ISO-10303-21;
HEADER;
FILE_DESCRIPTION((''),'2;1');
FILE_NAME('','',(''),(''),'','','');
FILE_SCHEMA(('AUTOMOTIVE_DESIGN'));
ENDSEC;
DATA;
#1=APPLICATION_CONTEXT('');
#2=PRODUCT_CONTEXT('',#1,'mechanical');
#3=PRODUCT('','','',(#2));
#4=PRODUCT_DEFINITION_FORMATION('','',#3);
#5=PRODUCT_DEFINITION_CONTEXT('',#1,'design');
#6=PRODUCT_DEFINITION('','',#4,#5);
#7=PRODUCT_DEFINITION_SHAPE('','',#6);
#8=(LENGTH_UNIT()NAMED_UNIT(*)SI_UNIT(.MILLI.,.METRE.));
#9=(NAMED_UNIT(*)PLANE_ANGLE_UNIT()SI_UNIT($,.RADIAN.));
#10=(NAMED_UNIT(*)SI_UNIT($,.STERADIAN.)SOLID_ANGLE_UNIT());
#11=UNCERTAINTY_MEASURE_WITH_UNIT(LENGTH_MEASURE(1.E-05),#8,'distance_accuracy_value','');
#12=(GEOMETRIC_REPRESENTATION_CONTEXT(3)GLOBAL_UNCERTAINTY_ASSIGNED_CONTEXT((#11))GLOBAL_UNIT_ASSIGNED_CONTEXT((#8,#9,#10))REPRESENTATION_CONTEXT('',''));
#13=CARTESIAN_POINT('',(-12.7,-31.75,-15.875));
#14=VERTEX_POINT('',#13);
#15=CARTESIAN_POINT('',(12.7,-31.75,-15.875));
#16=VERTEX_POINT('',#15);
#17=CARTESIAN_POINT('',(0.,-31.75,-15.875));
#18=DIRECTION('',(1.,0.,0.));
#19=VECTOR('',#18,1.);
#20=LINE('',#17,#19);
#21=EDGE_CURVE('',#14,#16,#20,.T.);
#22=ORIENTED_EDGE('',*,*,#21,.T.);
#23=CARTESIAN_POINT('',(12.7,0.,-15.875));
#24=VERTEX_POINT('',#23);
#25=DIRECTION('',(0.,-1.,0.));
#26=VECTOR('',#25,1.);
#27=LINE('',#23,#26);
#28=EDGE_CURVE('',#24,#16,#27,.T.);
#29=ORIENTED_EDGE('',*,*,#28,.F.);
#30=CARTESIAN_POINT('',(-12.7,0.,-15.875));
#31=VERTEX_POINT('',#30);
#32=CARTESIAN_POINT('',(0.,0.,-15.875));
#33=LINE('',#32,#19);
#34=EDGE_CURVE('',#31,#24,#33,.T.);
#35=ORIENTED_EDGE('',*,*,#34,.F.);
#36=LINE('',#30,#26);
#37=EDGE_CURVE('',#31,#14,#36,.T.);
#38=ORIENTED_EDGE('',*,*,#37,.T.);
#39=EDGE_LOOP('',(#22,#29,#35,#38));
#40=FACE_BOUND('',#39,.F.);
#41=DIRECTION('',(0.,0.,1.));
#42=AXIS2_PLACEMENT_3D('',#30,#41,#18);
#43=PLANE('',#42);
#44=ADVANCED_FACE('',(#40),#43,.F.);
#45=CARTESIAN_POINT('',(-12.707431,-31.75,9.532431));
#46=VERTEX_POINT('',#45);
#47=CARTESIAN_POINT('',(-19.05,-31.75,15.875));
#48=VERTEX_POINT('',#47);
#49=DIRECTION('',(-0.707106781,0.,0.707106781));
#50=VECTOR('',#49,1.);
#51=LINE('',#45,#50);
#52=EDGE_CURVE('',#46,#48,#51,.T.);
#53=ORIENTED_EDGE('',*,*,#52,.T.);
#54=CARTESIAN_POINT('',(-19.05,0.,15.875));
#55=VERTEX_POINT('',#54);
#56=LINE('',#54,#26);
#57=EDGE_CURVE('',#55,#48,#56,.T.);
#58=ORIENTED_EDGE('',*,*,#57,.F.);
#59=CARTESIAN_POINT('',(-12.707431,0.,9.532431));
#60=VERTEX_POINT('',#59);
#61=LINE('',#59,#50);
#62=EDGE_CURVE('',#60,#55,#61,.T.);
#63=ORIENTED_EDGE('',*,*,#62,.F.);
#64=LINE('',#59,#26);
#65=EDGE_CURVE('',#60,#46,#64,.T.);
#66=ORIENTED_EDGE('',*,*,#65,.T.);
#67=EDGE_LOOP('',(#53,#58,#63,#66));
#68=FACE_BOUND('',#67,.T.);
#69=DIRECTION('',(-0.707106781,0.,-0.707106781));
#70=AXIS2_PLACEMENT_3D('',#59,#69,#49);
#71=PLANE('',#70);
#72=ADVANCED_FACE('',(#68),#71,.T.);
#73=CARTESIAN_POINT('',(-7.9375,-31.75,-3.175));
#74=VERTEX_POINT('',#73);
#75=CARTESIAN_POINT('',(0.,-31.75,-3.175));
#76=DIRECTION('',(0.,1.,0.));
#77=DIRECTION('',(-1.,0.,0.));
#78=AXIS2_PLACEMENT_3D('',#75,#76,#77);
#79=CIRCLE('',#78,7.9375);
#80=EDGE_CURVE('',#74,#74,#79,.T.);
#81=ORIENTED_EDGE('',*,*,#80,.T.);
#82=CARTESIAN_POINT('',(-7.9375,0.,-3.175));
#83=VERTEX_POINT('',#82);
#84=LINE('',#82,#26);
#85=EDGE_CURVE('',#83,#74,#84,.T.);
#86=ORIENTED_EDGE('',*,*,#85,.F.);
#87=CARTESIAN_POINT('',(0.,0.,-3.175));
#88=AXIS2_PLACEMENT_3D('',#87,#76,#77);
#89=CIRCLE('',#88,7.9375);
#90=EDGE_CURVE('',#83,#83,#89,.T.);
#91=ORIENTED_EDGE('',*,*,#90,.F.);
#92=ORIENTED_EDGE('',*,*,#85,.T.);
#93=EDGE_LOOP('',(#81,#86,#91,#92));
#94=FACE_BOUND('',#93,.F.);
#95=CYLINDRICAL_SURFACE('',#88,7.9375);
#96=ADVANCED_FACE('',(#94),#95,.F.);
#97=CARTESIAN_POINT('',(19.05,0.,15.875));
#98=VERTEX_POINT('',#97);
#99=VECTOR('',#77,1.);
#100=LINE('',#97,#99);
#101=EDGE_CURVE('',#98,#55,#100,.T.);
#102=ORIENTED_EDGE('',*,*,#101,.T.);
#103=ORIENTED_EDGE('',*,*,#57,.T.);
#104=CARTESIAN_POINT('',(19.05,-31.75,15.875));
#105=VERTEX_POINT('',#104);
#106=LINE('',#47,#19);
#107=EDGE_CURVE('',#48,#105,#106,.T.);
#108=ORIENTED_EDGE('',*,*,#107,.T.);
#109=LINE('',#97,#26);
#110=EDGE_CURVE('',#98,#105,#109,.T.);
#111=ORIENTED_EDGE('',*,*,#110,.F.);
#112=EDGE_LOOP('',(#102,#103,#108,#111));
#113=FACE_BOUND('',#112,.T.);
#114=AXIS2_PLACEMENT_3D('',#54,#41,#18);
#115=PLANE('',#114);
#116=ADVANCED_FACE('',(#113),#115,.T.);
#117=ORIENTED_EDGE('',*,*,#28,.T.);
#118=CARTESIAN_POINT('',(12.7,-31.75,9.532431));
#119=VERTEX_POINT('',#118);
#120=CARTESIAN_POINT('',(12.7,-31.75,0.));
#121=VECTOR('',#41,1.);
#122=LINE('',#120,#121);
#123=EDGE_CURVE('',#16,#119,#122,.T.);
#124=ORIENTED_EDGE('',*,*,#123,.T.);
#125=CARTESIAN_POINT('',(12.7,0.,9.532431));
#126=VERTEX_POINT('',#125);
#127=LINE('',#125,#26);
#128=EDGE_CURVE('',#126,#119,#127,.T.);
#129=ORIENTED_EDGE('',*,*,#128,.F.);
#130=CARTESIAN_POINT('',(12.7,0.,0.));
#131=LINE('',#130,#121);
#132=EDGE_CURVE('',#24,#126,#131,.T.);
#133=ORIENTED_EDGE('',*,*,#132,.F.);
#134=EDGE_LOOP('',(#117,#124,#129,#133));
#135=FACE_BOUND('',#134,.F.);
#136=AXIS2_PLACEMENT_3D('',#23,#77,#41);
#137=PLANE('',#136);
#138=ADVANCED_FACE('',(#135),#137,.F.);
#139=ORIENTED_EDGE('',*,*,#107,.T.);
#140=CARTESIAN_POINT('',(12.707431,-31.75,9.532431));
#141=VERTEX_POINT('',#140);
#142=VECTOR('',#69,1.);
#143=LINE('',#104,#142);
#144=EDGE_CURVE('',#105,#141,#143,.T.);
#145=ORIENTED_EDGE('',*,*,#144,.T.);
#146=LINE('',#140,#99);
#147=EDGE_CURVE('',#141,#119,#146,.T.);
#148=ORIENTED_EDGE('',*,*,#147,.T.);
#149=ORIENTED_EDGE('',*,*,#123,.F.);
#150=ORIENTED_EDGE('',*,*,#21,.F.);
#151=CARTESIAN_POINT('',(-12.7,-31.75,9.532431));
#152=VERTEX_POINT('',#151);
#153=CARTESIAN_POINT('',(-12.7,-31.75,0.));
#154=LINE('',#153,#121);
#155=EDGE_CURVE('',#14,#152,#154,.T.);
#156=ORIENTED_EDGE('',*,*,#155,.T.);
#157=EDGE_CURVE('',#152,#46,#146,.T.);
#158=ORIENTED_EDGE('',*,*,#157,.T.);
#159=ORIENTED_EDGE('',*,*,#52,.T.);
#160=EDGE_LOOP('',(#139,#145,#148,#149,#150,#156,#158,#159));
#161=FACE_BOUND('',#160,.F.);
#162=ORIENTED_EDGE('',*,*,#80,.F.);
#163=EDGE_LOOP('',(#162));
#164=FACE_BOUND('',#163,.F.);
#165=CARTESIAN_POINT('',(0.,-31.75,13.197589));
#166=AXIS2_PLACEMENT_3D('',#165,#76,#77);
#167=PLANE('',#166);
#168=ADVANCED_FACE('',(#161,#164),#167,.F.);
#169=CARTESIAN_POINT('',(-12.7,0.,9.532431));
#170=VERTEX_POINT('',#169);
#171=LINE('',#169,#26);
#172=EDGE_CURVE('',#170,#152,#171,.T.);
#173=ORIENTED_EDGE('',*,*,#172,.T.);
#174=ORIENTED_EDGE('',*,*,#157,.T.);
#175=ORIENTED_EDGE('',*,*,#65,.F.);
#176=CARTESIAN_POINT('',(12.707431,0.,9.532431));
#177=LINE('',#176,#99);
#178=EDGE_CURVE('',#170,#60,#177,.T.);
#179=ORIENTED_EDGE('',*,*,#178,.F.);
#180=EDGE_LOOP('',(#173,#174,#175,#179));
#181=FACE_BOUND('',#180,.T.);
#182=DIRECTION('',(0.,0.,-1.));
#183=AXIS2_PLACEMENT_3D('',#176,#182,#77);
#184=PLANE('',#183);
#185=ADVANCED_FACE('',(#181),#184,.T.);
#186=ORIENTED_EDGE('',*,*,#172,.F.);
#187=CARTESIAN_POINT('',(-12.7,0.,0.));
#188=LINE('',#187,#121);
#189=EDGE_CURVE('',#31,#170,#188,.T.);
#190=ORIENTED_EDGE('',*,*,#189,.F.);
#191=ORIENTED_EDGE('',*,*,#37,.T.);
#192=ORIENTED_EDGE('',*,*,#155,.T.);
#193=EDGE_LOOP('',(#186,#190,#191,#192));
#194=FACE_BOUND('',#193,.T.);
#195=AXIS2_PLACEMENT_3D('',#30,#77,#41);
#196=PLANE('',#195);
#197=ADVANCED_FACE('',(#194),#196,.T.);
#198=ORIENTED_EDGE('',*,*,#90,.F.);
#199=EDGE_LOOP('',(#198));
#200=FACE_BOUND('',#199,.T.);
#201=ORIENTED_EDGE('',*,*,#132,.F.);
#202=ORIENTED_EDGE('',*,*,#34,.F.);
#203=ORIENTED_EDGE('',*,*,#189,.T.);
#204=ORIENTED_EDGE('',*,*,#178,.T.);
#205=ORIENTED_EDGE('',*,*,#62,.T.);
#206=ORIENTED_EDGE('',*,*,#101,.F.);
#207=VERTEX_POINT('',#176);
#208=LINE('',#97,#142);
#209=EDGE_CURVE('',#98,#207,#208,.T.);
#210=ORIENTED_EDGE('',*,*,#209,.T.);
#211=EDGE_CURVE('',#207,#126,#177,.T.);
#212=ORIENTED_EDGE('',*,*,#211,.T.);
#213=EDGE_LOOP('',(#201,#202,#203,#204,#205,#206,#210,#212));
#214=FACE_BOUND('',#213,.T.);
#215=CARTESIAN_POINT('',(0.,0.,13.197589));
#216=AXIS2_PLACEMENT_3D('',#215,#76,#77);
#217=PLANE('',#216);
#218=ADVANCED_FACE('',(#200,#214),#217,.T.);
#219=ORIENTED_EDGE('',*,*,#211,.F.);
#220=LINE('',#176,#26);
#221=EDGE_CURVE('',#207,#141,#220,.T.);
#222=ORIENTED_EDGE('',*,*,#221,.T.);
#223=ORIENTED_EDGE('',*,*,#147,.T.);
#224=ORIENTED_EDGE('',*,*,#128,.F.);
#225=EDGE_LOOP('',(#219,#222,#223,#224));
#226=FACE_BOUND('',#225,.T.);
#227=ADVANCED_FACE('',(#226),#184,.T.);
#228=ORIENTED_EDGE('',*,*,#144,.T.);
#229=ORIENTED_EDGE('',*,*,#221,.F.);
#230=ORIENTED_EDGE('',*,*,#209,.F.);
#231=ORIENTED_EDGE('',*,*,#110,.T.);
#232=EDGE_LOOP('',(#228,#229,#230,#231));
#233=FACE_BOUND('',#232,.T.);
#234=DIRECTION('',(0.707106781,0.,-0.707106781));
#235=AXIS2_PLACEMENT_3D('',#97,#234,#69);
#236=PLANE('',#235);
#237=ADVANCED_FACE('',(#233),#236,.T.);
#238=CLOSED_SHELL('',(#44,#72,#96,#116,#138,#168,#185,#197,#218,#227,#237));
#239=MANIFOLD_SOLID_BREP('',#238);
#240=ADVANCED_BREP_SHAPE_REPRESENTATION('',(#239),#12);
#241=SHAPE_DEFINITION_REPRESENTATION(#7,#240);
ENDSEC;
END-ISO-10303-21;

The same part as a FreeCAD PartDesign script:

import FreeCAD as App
import Part
import Sketcher
Q = App.Units.Quantity

doc = App.newDocument("Part")
params = doc.addObject("Spreadsheet::Sheet", "Params")
for row, (alias, value) in enumerate([
    ("sketch1_width", "1 in"),
    ("sketch1_height", "1.25 in"),
    ("pad1_length", "1.25 in"),
    ("sketch2_diameter", "0.625 in"),
    ("sketch3_width", "1.5 in"),
], start=1):
    params.set(f"A{row}", alias)
    params.set(f"B{row}", "=" + value)
    params.setAlias(f"B{row}", alias)

body = doc.addObject("PartDesign::Body", "Body")

# Sketch on XZ plane
sketch1 = body.newObject("Sketcher::SketchObject", "Sketch")
sketch1.AttachmentSupport = (doc.getObject("XZ_Plane"), [""])
sketch1.MapMode = "FlatFace"
sketch1.addGeometry([
    Part.LineSegment(App.Vector(-13, 16, 0), App.Vector(-13, -16, 0)),
    Part.LineSegment(App.Vector(-13, -16, 0), App.Vector(13, -16, 0)),
    Part.LineSegment(App.Vector(13, -16, 0), App.Vector(13, 16, 0)),
    Part.LineSegment(App.Vector(13, 16, 0), App.Vector(-13, 16, 0)),
], False)
sketch1.addConstraint([
    Sketcher.Constraint("Coincident", 0, 2, 1, 1),
    Sketcher.Constraint("Coincident", 1, 2, 2, 1),
    Sketcher.Constraint("Coincident", 2, 2, 3, 1),
    Sketcher.Constraint("Coincident", 3, 2, 0, 1),
    Sketcher.Constraint("Vertical", 0),
    Sketcher.Constraint("Horizontal", 1),
    Sketcher.Constraint("Vertical", 2),
    Sketcher.Constraint("Horizontal", 3),
    Sketcher.Constraint("Symmetric", 0, 2, 2, 2, -1, 1),
    Sketcher.Constraint("DistanceX", 1, 1, 1, 2, Q("1 in")),
    Sketcher.Constraint("DistanceY", 0, 2, 0, 1, Q("1.25 in")),
])
sketch1.setExpression("Constraints[9]", "Params.sketch1_width")
sketch1.setExpression("Constraints[10]", "Params.sketch1_height")
pad1 = body.newObject("PartDesign::Pad", "Pad")
pad1.Profile = sketch1
pad1.setExpression("Length", "Params.pad1_length")

# Sketch on XZ plane
sketch2 = body.newObject("Sketcher::SketchObject", "Sketch001")
sketch2.AttachmentSupport = (doc.getObject("XZ_Plane"), [""])
sketch2.MapMode = "FlatFace"
sketch2.addGeometry(Part.Circle(App.Vector(0, -3, 0), App.Vector(0, 0, 1), 8), False)
sketch2.addConstraint([
    Sketcher.Constraint("PointOnObject", 0, 3, -2),
    Sketcher.Constraint("Diameter", 0, Q("0.625 in")),
    Sketcher.Constraint("DistanceY", 0, 3, -1, 1, Q("0.125 in")),
])
sketch2.setExpression("Constraints[1]", "Params.sketch2_diameter")
pocket1 = body.newObject("PartDesign::Pocket", "Pocket")
pocket1.Profile = sketch2
pocket1.Type = "ThroughAll"
pocket1.Reversed = True

# Sketch on XZ plane
sketch3 = body.newObject("Sketcher::SketchObject", "Sketch002")
sketch3.AttachmentSupport = (doc.getObject("XZ_Plane"), [""])
sketch3.MapMode = "FlatFace"
sketch3.addGeometry([
    Part.LineSegment(App.Vector(-19, 16, 0), App.Vector(19, 16, 0)),
    Part.LineSegment(App.Vector(19, 16, 0), App.Vector(13, 10, 0)),
    Part.LineSegment(App.Vector(13, 10, 0), App.Vector(-13, 10, 0)),
    Part.LineSegment(App.Vector(-13, 10, 0), App.Vector(-19, 16, 0)),
], False)
sketch3.addConstraint([
    Sketcher.Constraint("Coincident", 0, 2, 1, 1),
    Sketcher.Constraint("Coincident", 1, 2, 2, 1),
    Sketcher.Constraint("Coincident", 2, 2, 3, 1),
    Sketcher.Constraint("Coincident", 3, 2, 0, 1),
    Sketcher.Constraint("Horizontal", 0),
    Sketcher.Constraint("Horizontal", 2),
    Sketcher.Constraint("Perpendicular", 1, 3),
    Sketcher.Constraint("Equal", 1, 3),
    Sketcher.Constraint("DistanceX", 0, 1, 0, 2, Q("1.5 in")),
    Sketcher.Constraint("DistanceX", -1, 1, 0, 2, Q("0.75 in")),
    Sketcher.Constraint("DistanceY", -1, 1, 0, 2, Q("0.625 in")),
    Sketcher.Constraint("DistanceX", 2, 2, 2, 1, Q("25.414862 mm")),
])
sketch3.setExpression("Constraints[8]", "Params.sketch3_width")
pad2 = body.newObject("PartDesign::Pad", "Pad001")
pad2.Profile = sketch3
pad2.Type = "UpToLast"

doc.recompute()
